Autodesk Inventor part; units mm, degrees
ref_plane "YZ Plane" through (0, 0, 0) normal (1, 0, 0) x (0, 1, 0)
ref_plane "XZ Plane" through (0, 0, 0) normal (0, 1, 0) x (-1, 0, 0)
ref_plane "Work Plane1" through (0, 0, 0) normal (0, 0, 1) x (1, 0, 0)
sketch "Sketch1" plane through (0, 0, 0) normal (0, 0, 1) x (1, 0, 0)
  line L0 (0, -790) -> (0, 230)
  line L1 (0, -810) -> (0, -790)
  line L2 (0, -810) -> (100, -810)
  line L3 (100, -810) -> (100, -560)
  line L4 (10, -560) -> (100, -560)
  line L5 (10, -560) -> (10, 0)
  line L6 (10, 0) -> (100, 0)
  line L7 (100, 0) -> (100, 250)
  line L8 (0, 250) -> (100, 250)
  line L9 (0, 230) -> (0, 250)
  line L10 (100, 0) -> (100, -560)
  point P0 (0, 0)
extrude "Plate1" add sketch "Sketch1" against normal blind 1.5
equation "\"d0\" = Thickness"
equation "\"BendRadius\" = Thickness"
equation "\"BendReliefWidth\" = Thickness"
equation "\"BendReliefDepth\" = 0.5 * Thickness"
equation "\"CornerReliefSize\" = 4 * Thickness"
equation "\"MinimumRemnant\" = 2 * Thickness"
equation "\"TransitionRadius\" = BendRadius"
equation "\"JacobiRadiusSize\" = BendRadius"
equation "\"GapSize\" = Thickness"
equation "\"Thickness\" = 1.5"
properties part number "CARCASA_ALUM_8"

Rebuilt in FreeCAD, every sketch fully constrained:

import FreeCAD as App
import Part
import Sketcher
Q = App.Units.Quantity

doc = App.newDocument("Part")
body = doc.addObject("PartDesign::Body", "Body")

sketch1 = body.newObject("Sketcher::SketchObject", "Sketch")
sketch1.AttachmentSupport = (doc.getObject("XY_Plane"), [""])
sketch1.MapMode = "FlatFace"
sketch1.addGeometry(Part.LineSegment(App.Vector(0, -810, 0), App.Vector(100, -810, 0)), False)
sketch1.addGeometry(Part.LineSegment(App.Vector(100, -810, 0), App.Vector(100, 250, 0)), False)
sketch1.addGeometry(Part.LineSegment(App.Vector(100, 250, 0), App.Vector(0, 250, 0)), False)
sketch1.addGeometry(Part.LineSegment(App.Vector(0, 250, 0), App.Vector(0, -810, 0)), False)
sketch1.addConstraint(Sketcher.Constraint("Coincident", 0, 2, 1, 1))
sketch1.addConstraint(Sketcher.Constraint("Coincident", 1, 2, 2, 1))
sketch1.addConstraint(Sketcher.Constraint("Coincident", 2, 2, 3, 1))
sketch1.addConstraint(Sketcher.Constraint("Coincident", 3, 2, 0, 1))
sketch1.addConstraint(Sketcher.Constraint("Horizontal", 0))
sketch1.addConstraint(Sketcher.Constraint("Vertical", 1))
sketch1.addConstraint(Sketcher.Constraint("Horizontal", 2))
sketch1.addConstraint(Sketcher.Constraint("Vertical", 3))
sketch1.addConstraint(Sketcher.Constraint("PointOnObject", 2, 2, -2))
sketch1.addConstraint(Sketcher.Constraint("DistanceX", 0, 1, 0, 2, Q("100 mm")))
sketch1.addConstraint(Sketcher.Constraint("DistanceY", 1, 1, 1, 2, Q("1060 mm")))
sketch1.addConstraint(Sketcher.Constraint("DistanceY", 0, 2, -1, 1, Q("810 mm")))
pad1 = body.newObject("PartDesign::Pad", "Pad")
pad1.Profile = sketch1
pad1.Length = 1.5
pad1.Reversed = True

doc.recompute()
